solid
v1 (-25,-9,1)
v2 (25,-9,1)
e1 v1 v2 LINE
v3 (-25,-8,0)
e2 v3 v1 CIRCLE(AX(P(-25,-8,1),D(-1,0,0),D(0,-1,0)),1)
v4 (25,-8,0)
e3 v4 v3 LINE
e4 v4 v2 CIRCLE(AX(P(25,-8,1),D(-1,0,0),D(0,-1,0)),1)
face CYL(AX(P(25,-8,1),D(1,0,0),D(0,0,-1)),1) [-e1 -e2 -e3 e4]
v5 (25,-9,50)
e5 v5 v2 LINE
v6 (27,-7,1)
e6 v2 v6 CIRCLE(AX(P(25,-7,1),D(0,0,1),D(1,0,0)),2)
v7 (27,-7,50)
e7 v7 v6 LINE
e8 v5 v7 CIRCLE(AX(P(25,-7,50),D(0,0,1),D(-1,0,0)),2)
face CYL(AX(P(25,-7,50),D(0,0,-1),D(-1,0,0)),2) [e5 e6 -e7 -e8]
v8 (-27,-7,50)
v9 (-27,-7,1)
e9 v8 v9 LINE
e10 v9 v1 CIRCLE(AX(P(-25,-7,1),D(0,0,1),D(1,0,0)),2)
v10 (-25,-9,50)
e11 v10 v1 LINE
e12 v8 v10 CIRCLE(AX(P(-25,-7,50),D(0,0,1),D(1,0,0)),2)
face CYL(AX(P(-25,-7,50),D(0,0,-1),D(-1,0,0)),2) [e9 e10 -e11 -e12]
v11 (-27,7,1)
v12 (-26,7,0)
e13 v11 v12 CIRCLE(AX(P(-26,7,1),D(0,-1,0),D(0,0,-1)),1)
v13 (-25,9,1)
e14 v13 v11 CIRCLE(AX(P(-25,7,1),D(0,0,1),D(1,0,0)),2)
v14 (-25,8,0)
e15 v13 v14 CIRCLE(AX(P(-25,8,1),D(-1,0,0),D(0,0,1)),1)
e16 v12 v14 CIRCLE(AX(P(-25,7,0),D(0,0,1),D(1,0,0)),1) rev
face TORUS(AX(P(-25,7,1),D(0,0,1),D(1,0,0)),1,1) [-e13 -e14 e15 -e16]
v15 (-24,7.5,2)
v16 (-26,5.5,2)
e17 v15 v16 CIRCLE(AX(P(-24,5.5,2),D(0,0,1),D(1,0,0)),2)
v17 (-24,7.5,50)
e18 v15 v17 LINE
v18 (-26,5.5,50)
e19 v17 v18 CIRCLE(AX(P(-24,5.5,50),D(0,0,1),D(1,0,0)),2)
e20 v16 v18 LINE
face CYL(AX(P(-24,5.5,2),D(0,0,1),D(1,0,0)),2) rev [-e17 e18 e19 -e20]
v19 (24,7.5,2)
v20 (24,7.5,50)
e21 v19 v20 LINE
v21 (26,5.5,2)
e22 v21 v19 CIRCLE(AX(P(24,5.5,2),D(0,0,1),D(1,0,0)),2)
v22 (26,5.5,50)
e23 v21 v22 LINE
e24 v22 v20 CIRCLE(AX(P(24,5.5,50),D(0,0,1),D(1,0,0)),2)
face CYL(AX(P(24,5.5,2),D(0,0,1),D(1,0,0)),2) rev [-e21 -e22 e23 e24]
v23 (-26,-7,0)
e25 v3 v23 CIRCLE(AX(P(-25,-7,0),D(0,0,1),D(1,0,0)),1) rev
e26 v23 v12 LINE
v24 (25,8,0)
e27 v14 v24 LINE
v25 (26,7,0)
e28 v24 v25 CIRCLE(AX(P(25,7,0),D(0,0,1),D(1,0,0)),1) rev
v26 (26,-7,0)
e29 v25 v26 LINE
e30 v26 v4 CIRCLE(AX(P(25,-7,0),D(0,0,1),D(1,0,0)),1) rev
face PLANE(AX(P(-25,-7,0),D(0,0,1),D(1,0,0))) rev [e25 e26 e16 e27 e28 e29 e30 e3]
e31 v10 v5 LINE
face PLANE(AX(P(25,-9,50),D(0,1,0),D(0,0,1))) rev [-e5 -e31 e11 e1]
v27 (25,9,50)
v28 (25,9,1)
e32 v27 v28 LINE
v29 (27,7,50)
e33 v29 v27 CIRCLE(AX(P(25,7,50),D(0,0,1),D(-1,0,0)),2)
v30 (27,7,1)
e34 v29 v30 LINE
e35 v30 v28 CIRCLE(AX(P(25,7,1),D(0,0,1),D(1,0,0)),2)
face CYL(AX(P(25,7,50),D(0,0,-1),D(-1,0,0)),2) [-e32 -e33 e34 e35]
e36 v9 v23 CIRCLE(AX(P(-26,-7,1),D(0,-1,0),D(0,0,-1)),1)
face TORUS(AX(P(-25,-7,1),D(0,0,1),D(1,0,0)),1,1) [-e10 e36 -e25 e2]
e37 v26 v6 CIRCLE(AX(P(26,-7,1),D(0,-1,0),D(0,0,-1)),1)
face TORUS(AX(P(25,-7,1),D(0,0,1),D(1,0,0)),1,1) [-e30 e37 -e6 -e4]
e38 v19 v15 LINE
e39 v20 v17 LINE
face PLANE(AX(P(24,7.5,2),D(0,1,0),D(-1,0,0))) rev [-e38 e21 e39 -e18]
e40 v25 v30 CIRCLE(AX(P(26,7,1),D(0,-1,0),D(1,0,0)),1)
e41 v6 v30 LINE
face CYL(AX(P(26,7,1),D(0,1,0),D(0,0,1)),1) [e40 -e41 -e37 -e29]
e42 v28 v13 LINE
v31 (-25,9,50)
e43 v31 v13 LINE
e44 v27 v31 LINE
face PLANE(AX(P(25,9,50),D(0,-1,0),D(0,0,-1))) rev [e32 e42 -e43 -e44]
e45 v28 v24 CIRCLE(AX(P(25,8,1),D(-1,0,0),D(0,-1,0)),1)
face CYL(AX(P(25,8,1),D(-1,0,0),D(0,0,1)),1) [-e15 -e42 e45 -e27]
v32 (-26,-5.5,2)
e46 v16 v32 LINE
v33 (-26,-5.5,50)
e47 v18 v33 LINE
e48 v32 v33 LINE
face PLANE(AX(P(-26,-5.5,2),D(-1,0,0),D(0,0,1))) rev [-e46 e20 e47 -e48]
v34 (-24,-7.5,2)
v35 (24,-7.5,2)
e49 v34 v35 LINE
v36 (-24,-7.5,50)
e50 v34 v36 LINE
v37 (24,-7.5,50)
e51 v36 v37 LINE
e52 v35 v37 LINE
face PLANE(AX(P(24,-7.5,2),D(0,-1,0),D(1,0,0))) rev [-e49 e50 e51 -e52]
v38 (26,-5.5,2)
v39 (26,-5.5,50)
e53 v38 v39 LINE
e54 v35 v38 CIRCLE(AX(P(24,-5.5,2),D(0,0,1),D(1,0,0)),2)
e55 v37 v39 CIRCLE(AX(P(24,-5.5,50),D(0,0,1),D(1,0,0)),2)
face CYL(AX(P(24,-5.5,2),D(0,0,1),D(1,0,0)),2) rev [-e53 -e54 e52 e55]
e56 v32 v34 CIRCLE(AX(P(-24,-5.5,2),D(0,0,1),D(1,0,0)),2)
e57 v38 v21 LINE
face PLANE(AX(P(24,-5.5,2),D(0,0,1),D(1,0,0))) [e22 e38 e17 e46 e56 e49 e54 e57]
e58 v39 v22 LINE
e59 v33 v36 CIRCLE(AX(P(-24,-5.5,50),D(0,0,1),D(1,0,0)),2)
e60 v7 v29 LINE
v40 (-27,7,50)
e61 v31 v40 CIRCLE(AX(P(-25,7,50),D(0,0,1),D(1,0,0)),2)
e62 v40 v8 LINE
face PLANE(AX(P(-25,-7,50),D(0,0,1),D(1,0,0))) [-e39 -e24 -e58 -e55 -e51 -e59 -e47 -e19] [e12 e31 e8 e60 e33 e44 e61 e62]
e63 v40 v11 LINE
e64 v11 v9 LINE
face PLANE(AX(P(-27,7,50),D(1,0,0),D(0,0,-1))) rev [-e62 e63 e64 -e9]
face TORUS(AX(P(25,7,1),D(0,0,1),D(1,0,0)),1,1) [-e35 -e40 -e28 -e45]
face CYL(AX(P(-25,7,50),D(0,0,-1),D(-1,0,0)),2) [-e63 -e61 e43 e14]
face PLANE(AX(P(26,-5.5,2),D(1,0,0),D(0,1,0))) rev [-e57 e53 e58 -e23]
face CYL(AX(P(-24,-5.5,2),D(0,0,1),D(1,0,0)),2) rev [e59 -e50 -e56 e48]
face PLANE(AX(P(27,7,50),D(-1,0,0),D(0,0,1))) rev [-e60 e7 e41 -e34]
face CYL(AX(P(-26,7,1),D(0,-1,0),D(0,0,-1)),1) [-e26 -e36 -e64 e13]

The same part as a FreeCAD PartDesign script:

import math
import FreeCAD as App
import Part
import Sketcher


def edges_at(feature, points):
    """Names of the edges that pass closest to the given points."""
    edges = feature.Shape.Edges
    near = lambda p: min(range(len(edges)), key=lambda i: edges[i].distToShape(Part.Vertex(*p))[0])
    return sorted({f"Edge{near(p) + 1}" for p in points})

doc = App.newDocument("Part")
body = doc.addObject("PartDesign::Body", "Body")

sketch1 = body.newObject("Sketcher::SketchObject", "Sketch")
sketch1.AttachmentSupport = (doc.getObject("XY_Plane"), [""])
sketch1.MapMode = "FlatFace"
sketch1.addGeometry(Part.LineSegment(App.Vector(25, 9, 0), App.Vector(-25, 9, 0)), False)
sketch1.addGeometry(Part.ArcOfCircle(Part.Circle(App.Vector(-25, 7, 0), App.Vector(0, 0, 1), 2), math.radians(90), math.radians(180)), False)
sketch1.addGeometry(Part.LineSegment(App.Vector(-27, 7, 0), App.Vector(-27, -7, 0)), False)
sketch1.addGeometry(Part.ArcOfCircle(Part.Circle(App.Vector(-25, -7, 0), App.Vector(0, 0, 1), 2), math.radians(-180), math.radians(-90)), False)
sketch1.addGeometry(Part.LineSegment(App.Vector(-25, -9, 0), App.Vector(25, -9, 0)), False)
sketch1.addGeometry(Part.ArcOfCircle(Part.Circle(App.Vector(25, -7, 0), App.Vector(0, 0, 1), 2), math.radians(-90), math.radians(0)), False)
sketch1.addGeometry(Part.LineSegment(App.Vector(27, -7, 0), App.Vector(27, 7, 0)), False)
sketch1.addGeometry(Part.ArcOfCircle(Part.Circle(App.Vector(25, 7, 0), App.Vector(0, 0, 1), 2), math.radians(0), math.radians(90)), False)
sketch1.addConstraint(Sketcher.Constraint("Tangent", 0, 2, 1, 1))
sketch1.addConstraint(Sketcher.Constraint("Tangent", 1, 2, 2, 1))
sketch1.addConstraint(Sketcher.Constraint("Tangent", 2, 2, 3, 1))
sketch1.addConstraint(Sketcher.Constraint("Tangent", 3, 2, 4, 1))
sketch1.addConstraint(Sketcher.Constraint("Tangent", 4, 2, 5, 1))
sketch1.addConstraint(Sketcher.Constraint("Tangent", 5, 2, 6, 1))
sketch1.addConstraint(Sketcher.Constraint("Tangent", 6, 2, 7, 1))
sketch1.addConstraint(Sketcher.Constraint("Tangent", 7, 2, 0, 1))
sketch1.addConstraint(Sketcher.Constraint("Horizontal", 0))
sketch1.addConstraint(Sketcher.Constraint("Vertical", 2))
sketch1.addConstraint(Sketcher.Constraint("Horizontal", 4))
sketch1.addConstraint(Sketcher.Constraint("Vertical", 6))
sketch1.addConstraint(Sketcher.Constraint("Equal", 1, 3))
sketch1.addConstraint(Sketcher.Constraint("Equal", 3, 5))
sketch1.addConstraint(Sketcher.Constraint("Equal", 5, 7))
sketch1.addConstraint(Sketcher.Constraint("Symmetric", 1, 3, 5, 3, -1, 1))
sketch1.addConstraint(Sketcher.Constraint("Radius", 1, 2.0))
sketch1.addConstraint(Sketcher.Constraint("DistanceX", 0, 2, 0, 1, 50.0))
sketch1.addConstraint(Sketcher.Constraint("DistanceY", 2, 2, 2, 1, 14.0))
pad1 = body.newObject("PartDesign::Pad", "Pad")
pad1.Profile = sketch1
pad1.Length = 50

sketch2 = body.newObject("Sketcher::SketchObject", "Sketch001")
sketch2.AttachmentSupport = (doc.getObject("XY_Plane"), [""])
sketch2.MapMode = "FlatFace"
sketch2.AttachmentOffset = App.Placement(App.Vector(0, 0, 50), App.Rotation())
sketch2.addGeometry(Part.LineSegment(App.Vector(-24, -7.5, 0), App.Vector(24, -7.5, 0)), False)
sketch2.addGeometry(Part.ArcOfCircle(Part.Circle(App.Vector(24, -5.5, 0), App.Vector(0, 0, 1), 2), math.radians(-90), math.radians(0)), False)
sketch2.addGeometry(Part.LineSegment(App.Vector(26, -5.5, 0), App.Vector(26, 5.5, 0)), False)
sketch2.addGeometry(Part.ArcOfCircle(Part.Circle(App.Vector(24, 5.5, 0), App.Vector(0, 0, 1), 2), math.radians(0), math.radians(90)), False)
sketch2.addGeometry(Part.LineSegment(App.Vector(24, 7.5, 0), App.Vector(-24, 7.5, 0)), False)
sketch2.addGeometry(Part.ArcOfCircle(Part.Circle(App.Vector(-24, 5.5, 0), App.Vector(0, 0, 1), 2), math.radians(90), math.radians(180)), False)
sketch2.addGeometry(Part.LineSegment(App.Vector(-26, 5.5, 0), App.Vector(-26, -5.5, 0)), False)
sketch2.addGeometry(Part.ArcOfCircle(Part.Circle(App.Vector(-24, -5.5, 0), App.Vector(0, 0, 1), 2), math.radians(-180), math.radians(-90)), False)
sketch2.addConstraint(Sketcher.Constraint("Tangent", 0, 2, 1, 1))
sketch2.addConstraint(Sketcher.Constraint("Tangent", 1, 2, 2, 1))
sketch2.addConstraint(Sketcher.Constraint("Tangent", 2, 2, 3, 1))
sketch2.addConstraint(Sketcher.Constraint("Tangent", 3, 2, 4, 1))
sketch2.addConstraint(Sketcher.Constraint("Tangent", 4, 2, 5, 1))
sketch2.addConstraint(Sketcher.Constraint("Tangent", 5, 2, 6, 1))
sketch2.addConstraint(Sketcher.Constraint("Tangent", 6, 2, 7, 1))
sketch2.addConstraint(Sketcher.Constraint("Tangent", 7, 2, 0, 1))
sketch2.addConstraint(Sketcher.Constraint("Horizontal", 0))
sketch2.addConstraint(Sketcher.Constraint("Vertical", 2))
sketch2.addConstraint(Sketcher.Constraint("Horizontal", 4))
sketch2.addConstraint(Sketcher.Constraint("Vertical", 6))
sketch2.addConstraint(Sketcher.Constraint("Equal", 1, 3))
sketch2.addConstraint(Sketcher.Constraint("Equal", 3, 5))
sketch2.addConstraint(Sketcher.Constraint("Equal", 5, 7))
sketch2.addConstraint(Sketcher.Constraint("Symmetric", 1, 3, 5, 3, -1, 1))
sketch2.addConstraint(Sketcher.Constraint("Radius", 1, 2.0))
sketch2.addConstraint(Sketcher.Constraint("DistanceX", 0, 1, 0, 2, 48.0))
sketch2.addConstraint(Sketcher.Constraint("DistanceY", 2, 1, 2, 2, 11.0))
pocket1 = body.newObject("PartDesign::Pocket", "Pocket")
pocket1.Profile = sketch2
pocket1.Length = 48
doc.recompute()

fillet = body.newObject("PartDesign::Fillet", "Fillet")
fillet.Base = (pocket1, edges_at(pocket1, [
    (0, -9, 0),
    (-26.414, -8.414, 0),
    (-27, 0, 0),
    (-26.414, 8.414, 0),
    (0, 9, 0),
    (26.414, 8.414, 0),
    (27, 0, 0),
    (26.414, -8.414, 0),
]))
fillet.Radius = 1

doc.recompute()
